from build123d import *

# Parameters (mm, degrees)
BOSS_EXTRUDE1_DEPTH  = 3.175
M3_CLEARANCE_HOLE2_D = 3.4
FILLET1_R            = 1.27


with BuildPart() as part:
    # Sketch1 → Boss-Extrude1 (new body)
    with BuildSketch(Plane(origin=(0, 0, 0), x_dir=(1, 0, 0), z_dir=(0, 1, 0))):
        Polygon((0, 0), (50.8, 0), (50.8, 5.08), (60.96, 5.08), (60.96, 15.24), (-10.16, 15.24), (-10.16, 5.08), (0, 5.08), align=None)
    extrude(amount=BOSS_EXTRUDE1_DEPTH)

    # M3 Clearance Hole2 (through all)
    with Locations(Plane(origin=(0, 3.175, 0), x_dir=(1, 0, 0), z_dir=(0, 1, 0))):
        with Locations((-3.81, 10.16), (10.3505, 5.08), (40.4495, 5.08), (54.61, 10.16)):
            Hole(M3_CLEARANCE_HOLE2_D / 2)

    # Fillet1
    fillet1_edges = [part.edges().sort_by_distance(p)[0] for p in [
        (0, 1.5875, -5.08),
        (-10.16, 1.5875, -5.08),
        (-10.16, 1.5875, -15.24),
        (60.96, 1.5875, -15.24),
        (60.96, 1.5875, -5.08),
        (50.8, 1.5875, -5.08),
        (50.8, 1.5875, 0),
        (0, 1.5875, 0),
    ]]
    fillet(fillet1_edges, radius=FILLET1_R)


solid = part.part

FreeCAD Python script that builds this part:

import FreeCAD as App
import Part
import Sketcher

V = App.Vector
Q = App.Units.Quantity


def edges_at(feature, points):
    """Names of the edges that pass closest to the given points."""
    edges = feature.Shape.Edges
    near = lambda p: min(range(len(edges)), key=lambda i: edges[i].distToShape(Part.Vertex(*p))[0])
    return sorted({f"Edge{near(p) + 1}" for p in points})


def add_polygon(sketch, points):
    """Adds a closed chain of lines whose ends are joined by coincident constraints."""
    first, n = sketch.GeometryCount, len(points)
    for a, b in zip(points, points[1:] + points[:1]):
        sketch.addGeometry(Part.LineSegment(App.Vector(*a, 0), App.Vector(*b, 0)), False)
    for i in range(n):
        sketch.addConstraint(Sketcher.Constraint("Coincident", first + i, 2, first + (i + 1) % n, 1))

doc = App.newDocument("Part")
params = doc.addObject("Spreadsheet::Sheet", "Params")
for row, (alias, value) in enumerate([
    ("sketch1_width", "2 in"),
    ("sketch1_width2", "0.4 in"),
    ("sketch1_height", "0.2 in"),
    ("pad1_length", "0.125 in"),
    ("hole_diameter", "3.4 mm"),
    ("fillet_radius", "0.05 in"),
], start=1):
    params.set(f"A{row}", alias)
    params.set(f"B{row}", "=" + value)
    params.setAlias(f"B{row}", alias)

body = doc.addObject("PartDesign::Body", "Body")

sketch1 = body.newObject("Sketcher::SketchObject", "Sketch")
sketch1.AttachmentSupport = (doc.getObject("XZ_Plane"), [""])
sketch1.MapMode = "FlatFace"
add_polygon(sketch1, [(0, 0), (51, 0), (51, -5), (61, -5), (61, -15), (-10, -15), (-10, -5), (0, -5)])
sketch1.addConstraint([
    Sketcher.Constraint("Horizontal", 0),
    Sketcher.Constraint("Vertical", 1),
    Sketcher.Constraint("Horizontal", 2),
    Sketcher.Constraint("Vertical", 3),
    Sketcher.Constraint("Horizontal", 4),
    Sketcher.Constraint("Vertical", 5),
    Sketcher.Constraint("Horizontal", 6),
    Sketcher.Constraint("Vertical", 7),
    Sketcher.Constraint("Coincident", 7, 2, -1, 1),
    Sketcher.Constraint("Horizontal", 2, 2, 5, 2),
    Sketcher.Constraint("Equal", 2, 6),
    Sketcher.Constraint("Equal", 6, 3),
    Sketcher.Constraint("DistanceX", 0, 1, 0, 2, Q("2 in")),
    Sketcher.Constraint("DistanceX", 2, 1, 2, 2, Q("0.4 in")),
    Sketcher.Constraint("DistanceY", 1, 2, 1, 1, Q("0.2 in")),
])
sketch1.setExpression("Constraints[20]", "Params.sketch1_width")
sketch1.setExpression("Constraints[21]", "Params.sketch1_width2")
sketch1.setExpression("Constraints[22]", "Params.sketch1_height")
pad1 = body.newObject("PartDesign::Pad", "Pad")
pad1.Profile = sketch1
pad1.setExpression("Length", "Params.pad1_length")
pad1.Reversed = True

sketch2 = body.newObject("Sketcher::SketchObject", "Sketch001")
sketch2.AttachmentSupport = (doc.getObject("XZ_Plane"), [""])
sketch2.MapMode = "FlatFace"
sketch2.AttachmentOffset = App.Placement(V(0, 0, -0.125 * 25.4), App.Rotation())
sketch2.addGeometry([
    Part.Circle(V(-3.8, -10.2, 0), V(0, 0, 1), 1.7),
    Part.Circle(V(10.4, -5.1, 0), V(0, 0, 1), 1.7),
    Part.Circle(V(40.4, -5.1, 0), V(0, 0, 1), 1.7),
    Part.Circle(V(54.6, -10.2, 0), V(0, 0, 1), 1.7),
], False)
sketch2.addConstraint([
    Sketcher.Constraint("Equal", 0, 1),
    Sketcher.Constraint("Equal", 1, 2),
    Sketcher.Constraint("Equal", 2, 3),
    Sketcher.Constraint("Horizontal", 1, 3, 2, 3),
    Sketcher.Constraint("Horizontal", 0, 3, 3, 3),
    Sketcher.Constraint("DistanceY", 0, 3, -1, 1, Q("0.4 in")),
    Sketcher.Constraint("DistanceY", 1, 3, -1, 1, Q("0.2 in")),
    Sketcher.Constraint("DistanceX", 0, 3, 3, 3, Q("2.3 in")),
    Sketcher.Constraint("Diameter", 0, 3.4),
    Sketcher.Constraint("DistanceX", 0, 3, -1, 1, Q("0.15 in")),
    Sketcher.Constraint("DistanceX", 1, 3, 2, 3, Q("1.185 in")),
    Sketcher.Constraint("DistanceX", -1, 1, 1, 3, Q("0.4075 in")),
])
doc.recompute()
hole = body.newObject("PartDesign::Hole", "Hole")
hole.Profile = sketch2
hole.ThreadType = "None"
hole.setExpression("Diameter", "Params.hole_diameter")
hole.DepthType = "ThroughAll"
hole.Reversed = True
doc.recompute()

fillet = body.newObject("PartDesign::Fillet", "Fillet")
fillet.Base = (hole, edges_at(hole, [
    (0, 1.587, -5.08),
    (-10.16, 1.587, -5.08),
    (-10.16, 1.587, -15.24),
    (60.96, 1.587, -15.24),
    (60.96, 1.587, -5.08),
    (50.8, 1.587, -5.08),
    (50.8, 1.587, 0),
    (0, 1.587, 0),
]))
fillet.setExpression("Radius", "Params.fillet_radius")

doc.recompute()
